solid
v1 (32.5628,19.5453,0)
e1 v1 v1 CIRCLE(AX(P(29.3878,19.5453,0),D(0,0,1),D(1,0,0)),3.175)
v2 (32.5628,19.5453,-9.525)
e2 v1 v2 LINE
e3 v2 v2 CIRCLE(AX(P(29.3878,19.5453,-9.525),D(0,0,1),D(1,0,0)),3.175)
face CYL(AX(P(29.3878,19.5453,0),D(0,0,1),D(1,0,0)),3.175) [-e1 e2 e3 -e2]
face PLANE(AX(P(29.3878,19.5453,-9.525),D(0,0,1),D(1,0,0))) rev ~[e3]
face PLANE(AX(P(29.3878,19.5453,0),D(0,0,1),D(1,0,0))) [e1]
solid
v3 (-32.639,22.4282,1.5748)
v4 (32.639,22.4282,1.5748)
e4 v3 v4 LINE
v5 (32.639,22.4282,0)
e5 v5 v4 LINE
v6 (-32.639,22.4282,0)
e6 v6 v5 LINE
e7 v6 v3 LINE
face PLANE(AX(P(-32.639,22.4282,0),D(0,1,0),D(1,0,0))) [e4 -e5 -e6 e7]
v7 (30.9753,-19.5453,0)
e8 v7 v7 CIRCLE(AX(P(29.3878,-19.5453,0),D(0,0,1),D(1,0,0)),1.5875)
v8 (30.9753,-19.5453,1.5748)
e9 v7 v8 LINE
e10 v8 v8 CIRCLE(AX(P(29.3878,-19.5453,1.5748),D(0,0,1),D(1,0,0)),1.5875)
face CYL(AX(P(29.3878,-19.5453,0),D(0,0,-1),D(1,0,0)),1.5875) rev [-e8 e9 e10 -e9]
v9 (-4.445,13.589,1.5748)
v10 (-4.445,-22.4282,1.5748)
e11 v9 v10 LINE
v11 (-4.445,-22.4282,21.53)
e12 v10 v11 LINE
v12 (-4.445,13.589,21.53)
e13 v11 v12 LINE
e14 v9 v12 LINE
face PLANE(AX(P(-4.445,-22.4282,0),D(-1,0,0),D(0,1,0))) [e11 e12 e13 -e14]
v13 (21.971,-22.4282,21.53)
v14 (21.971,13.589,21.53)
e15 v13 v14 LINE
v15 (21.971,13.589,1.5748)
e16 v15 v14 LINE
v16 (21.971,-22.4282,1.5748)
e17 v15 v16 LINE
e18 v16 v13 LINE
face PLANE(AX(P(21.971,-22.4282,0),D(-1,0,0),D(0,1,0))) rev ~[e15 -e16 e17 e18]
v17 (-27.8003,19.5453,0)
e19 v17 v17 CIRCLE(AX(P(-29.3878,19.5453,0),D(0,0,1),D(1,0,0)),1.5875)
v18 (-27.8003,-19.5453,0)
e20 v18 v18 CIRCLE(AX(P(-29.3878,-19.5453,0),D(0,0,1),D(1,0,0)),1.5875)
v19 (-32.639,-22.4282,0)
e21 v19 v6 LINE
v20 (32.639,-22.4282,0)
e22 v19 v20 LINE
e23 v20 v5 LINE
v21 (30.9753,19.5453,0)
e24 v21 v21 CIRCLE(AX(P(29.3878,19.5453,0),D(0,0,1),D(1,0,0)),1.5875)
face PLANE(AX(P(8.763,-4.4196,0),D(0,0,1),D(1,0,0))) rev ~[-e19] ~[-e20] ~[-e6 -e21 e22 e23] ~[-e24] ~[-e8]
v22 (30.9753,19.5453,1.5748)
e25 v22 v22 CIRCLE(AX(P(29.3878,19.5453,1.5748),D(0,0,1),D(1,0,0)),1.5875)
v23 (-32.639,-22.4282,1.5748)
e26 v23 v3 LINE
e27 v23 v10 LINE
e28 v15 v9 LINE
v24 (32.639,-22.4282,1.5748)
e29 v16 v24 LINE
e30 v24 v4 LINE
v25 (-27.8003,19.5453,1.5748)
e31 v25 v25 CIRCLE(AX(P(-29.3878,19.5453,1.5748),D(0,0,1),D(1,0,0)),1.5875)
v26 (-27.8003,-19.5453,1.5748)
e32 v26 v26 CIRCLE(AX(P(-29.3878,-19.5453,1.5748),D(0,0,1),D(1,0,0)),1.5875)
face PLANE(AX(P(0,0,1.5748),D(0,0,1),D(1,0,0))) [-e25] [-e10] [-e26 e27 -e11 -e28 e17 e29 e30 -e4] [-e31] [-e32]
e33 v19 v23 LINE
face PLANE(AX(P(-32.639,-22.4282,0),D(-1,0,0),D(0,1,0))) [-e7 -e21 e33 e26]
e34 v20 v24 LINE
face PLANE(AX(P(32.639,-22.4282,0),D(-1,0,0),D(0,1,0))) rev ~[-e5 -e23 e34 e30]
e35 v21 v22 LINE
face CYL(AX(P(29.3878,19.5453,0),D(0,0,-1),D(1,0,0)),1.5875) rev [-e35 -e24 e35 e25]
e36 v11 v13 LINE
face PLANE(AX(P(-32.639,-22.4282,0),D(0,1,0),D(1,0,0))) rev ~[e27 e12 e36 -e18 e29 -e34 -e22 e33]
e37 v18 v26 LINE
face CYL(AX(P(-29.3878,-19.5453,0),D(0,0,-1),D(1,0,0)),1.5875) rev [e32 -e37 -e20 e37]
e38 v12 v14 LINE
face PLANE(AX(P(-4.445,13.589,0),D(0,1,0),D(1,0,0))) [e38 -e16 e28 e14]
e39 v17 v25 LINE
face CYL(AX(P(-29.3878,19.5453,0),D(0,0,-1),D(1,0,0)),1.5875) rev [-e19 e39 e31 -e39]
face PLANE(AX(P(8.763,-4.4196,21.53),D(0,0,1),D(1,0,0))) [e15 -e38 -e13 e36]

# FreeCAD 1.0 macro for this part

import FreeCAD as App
import Part
import Sketcher

V = App.Vector
Q = App.Units.Quantity


def add_polygon(sketch, points):
    """Adds a closed chain of lines whose ends are joined by coincident constraints."""
    first, n = sketch.GeometryCount, len(points)
    for a, b in zip(points, points[1:] + points[:1]):
        sketch.addGeometry(Part.LineSegment(App.Vector(*a, 0), App.Vector(*b, 0)), False)
    for i in range(n):
        sketch.addConstraint(Sketcher.Constraint("Coincident", first + i, 2, first + (i + 1) % n, 1))

doc = App.newDocument("Part")
params = doc.addObject("Spreadsheet::Sheet", "Params")
for row, (alias, value) in enumerate([
    ("sketch1_diameter", "0.125 in"),
    ("sketch1_width", "2.57 in"),
    ("sketch1_height", "1.766 in"),
    ("pad1_length", "0.062 in"),
    ("sketch2_width", "1.04 in"),
    ("sketch2_height", "1.418 in"),
    ("pad2_length", "21.53 mm"),
    ("sketch3_diameter", "0.25 in"),
    ("pad3_length", "0.375 in"),
], start=1):
    params.set(f"A{row}", alias)
    params.set(f"B{row}", "=" + value)
    params.setAlias(f"B{row}", alias)

body = doc.addObject("PartDesign::Body", "Body")

sketch1 = doc.addObject("Sketcher::SketchObject", "Sketch")
body.addObject(sketch1)
sketch1.AttachmentSupport = (doc.XY_Plane, [""])
sketch1.MapMode = "FlatFace"
add_polygon(sketch1, [(-32.6, 22.4), (-32.6, -22.4), (32.6, -22.4), (32.6, 22.4)])
sketch1.addGeometry(Part.Circle(V(-29.4, -19.5, 0), V(0, 0, 1), 1.6), False)
sketch1.addGeometry(Part.Circle(V(29.4, -19.5, 0), V(0, 0, 1), 1.6), False)
sketch1.addGeometry(Part.Circle(V(-29.4, 19.5, 0), V(0, 0, 1), 1.6), False)
sketch1.addGeometry(Part.Circle(V(29.4, 19.5, 0), V(0, 0, 1), 1.6), False)
sketch1.addConstraint([
    Sketcher.Constraint("Vertical", 0),
    Sketcher.Constraint("Horizontal", 1),
    Sketcher.Constraint("Vertical", 2),
    Sketcher.Constraint("Horizontal", 3),
    Sketcher.Constraint("Equal", 4, 5),
    Sketcher.Constraint("Equal", 5, 6),
    Sketcher.Constraint("Equal", 6, 7),
    Sketcher.Constraint("Symmetric", 5, 3, 6, 3, -1, 1),
    Sketcher.Constraint("Symmetric", 4, 3, 7, 3, -1, 1),
    Sketcher.Constraint("Symmetric", 0, 2, 2, 2, -1, 1),
    Sketcher.Constraint("Symmetric", 4, 3, 5, 3, -2),
    Sketcher.Constraint("Diameter", 4, Q("0.125 in")),
    Sketcher.Constraint("DistanceX", 1, 1, 1, 2, Q("2.57 in")),
    Sketcher.Constraint("DistanceY", 0, 2, 0, 1, Q("1.766 in")),
    Sketcher.Constraint("DistanceX", 4, 3, -1, 1, Q("1.157 in")),
    Sketcher.Constraint("DistanceY", 4, 3, 6, 3, Q("1.539 in")),
])
sketch1.setExpression("Constraints[15]", "Params.sketch1_diameter")
sketch1.setExpression("Constraints[16]", "Params.sketch1_width")
sketch1.setExpression("Constraints[17]", "Params.sketch1_height")
pad1 = doc.addObject("PartDesign::Pad", "Pad")
body.addObject(pad1)
pad1.Profile = sketch1
pad1.setExpression("Length", "Params.pad1_length")

sketch2 = doc.addObject("Sketcher::SketchObject", "Sketch001")
body.addObject(sketch2)
sketch2.AttachmentSupport = (doc.XY_Plane, [""])
sketch2.MapMode = "FlatFace"
add_polygon(sketch2, [(-4, 14), (-4, -22), (22, -22), (22, 14)])
sketch2.addConstraint([
    Sketcher.Constraint("Vertical", 0),
    Sketcher.Constraint("Horizontal", 1),
    Sketcher.Constraint("Vertical", 2),
    Sketcher.Constraint("Horizontal", 3),
    Sketcher.Constraint("DistanceX", 1, 1, 1, 2, Q("1.04 in")),
    Sketcher.Constraint("DistanceY", 0, 2, 0, 1, Q("1.418 in")),
    Sketcher.Constraint("DistanceX", 0, 2, -1, 1, Q("0.175 in")),
    Sketcher.Constraint("DistanceY", 0, 2, -1, 1, Q("0.883 in")),
])
sketch2.setExpression("Constraints[8]", "Params.sketch2_width")
sketch2.setExpression("Constraints[9]", "Params.sketch2_height")
pad2 = doc.addObject("PartDesign::Pad", "Pad001")
body.addObject(pad2)
pad2.Profile = sketch2
pad2.setExpression("Length", "Params.pad2_length")
body2 = doc.addObject("PartDesign::Body", "Body001")

sketch3 = doc.addObject("Sketcher::SketchObject", "Sketch002")
body2.addObject(sketch3)
sketch3.AttachmentSupport = (doc.getObject("XY_Plane001"), [""])
sketch3.MapMode = "FlatFace"
sketch3.addGeometry(Part.Circle(V(29.4, 19.5, 0), V(0, 0, 1), 3.2), False)
sketch3.addConstraint([
    Sketcher.Constraint("Diameter", 0, Q("0.25 in")),
    Sketcher.Constraint("DistanceX", -1, 1, 0, 3, Q("1.157 in")),
    Sketcher.Constraint("DistanceY", -1, 1, 0, 3, Q("0.7695 in")),
])
sketch3.setExpression("Constraints[0]", "Params.sketch3_diameter")
pad3 = doc.addObject("PartDesign::Pad", "Pad002")
body2.addObject(pad3)
pad3.Profile = sketch3
pad3.setExpression("Length", "Params.pad3_length")
pad3.Reversed = True

doc.recompute()
